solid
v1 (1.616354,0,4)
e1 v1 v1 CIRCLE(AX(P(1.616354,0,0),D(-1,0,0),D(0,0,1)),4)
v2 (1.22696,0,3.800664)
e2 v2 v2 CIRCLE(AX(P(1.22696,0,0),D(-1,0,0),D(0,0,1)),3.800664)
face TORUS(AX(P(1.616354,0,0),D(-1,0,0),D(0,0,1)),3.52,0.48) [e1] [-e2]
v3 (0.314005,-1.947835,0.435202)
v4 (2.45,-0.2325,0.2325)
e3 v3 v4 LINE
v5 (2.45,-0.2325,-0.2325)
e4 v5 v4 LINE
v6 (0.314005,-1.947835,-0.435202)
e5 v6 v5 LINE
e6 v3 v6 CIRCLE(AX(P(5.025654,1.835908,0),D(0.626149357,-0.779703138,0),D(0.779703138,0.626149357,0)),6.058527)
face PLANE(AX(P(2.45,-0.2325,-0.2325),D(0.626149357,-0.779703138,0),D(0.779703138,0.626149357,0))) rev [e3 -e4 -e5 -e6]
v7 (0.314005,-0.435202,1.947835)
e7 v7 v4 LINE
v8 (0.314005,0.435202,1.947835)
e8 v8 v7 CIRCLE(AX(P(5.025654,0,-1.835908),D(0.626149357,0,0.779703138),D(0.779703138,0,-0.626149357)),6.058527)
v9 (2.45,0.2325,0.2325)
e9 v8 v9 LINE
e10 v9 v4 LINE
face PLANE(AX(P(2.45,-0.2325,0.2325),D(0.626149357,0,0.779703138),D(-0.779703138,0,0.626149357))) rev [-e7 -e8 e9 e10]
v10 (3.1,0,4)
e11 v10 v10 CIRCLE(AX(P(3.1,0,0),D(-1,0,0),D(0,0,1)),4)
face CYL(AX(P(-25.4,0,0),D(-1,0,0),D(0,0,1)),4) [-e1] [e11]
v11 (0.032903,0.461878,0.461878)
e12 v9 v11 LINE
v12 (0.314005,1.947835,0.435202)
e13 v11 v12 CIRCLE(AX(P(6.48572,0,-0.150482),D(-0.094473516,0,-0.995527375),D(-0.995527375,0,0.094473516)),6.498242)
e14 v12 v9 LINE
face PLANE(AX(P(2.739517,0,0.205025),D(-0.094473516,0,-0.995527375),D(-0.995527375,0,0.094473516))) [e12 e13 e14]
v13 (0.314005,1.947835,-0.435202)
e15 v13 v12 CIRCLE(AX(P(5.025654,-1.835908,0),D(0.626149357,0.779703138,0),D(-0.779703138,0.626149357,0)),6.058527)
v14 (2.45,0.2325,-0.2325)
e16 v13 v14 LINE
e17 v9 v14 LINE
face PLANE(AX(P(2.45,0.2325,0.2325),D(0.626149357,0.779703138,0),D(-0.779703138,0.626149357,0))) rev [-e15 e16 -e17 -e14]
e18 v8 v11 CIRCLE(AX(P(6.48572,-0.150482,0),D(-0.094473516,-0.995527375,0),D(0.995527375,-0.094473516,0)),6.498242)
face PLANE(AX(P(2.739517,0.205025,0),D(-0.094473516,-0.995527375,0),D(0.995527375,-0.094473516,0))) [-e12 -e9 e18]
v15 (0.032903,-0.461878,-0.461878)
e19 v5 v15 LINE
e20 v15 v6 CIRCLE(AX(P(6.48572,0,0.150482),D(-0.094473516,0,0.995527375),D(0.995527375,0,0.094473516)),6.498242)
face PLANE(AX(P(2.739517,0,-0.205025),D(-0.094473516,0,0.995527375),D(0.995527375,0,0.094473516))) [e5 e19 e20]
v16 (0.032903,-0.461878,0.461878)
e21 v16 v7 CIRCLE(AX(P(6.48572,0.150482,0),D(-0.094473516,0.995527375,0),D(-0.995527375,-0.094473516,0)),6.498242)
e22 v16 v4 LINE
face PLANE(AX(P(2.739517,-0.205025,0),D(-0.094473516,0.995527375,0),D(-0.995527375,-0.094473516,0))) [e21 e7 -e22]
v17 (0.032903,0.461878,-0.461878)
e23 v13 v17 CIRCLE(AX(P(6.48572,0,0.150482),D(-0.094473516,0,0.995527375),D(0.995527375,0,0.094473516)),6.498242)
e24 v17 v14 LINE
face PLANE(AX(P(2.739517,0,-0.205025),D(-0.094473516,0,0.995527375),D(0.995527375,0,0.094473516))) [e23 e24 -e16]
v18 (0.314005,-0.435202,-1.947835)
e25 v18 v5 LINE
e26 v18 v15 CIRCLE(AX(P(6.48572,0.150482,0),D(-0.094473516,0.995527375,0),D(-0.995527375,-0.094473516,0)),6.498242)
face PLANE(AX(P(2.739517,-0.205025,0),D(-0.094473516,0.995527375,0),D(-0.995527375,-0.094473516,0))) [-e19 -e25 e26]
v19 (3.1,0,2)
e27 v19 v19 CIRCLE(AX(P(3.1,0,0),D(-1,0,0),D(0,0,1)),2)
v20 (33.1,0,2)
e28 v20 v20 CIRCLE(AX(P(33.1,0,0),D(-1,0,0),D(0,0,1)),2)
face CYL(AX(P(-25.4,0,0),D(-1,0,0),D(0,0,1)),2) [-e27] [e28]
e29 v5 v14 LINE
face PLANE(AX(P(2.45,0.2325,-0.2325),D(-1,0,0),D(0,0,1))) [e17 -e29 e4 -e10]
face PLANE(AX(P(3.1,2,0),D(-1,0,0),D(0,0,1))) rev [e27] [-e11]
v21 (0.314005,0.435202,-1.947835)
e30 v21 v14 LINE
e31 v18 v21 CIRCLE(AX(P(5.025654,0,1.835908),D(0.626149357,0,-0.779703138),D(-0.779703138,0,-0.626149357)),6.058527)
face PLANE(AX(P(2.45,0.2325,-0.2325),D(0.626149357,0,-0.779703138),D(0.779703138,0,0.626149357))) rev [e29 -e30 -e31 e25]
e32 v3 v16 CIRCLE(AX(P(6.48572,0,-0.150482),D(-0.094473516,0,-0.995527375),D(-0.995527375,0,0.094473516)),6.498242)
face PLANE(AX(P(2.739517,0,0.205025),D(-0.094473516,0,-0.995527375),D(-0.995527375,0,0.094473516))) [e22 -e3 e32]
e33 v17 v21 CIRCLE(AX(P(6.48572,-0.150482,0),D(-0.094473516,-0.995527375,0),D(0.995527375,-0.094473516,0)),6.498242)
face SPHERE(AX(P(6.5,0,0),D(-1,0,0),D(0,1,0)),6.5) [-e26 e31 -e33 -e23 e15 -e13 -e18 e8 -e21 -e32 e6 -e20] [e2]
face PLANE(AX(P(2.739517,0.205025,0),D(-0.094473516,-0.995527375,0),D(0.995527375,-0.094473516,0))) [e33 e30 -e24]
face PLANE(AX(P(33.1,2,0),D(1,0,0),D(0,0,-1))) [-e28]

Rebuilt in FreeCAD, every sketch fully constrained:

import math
import FreeCAD as App
import Part
import Sketcher

V = App.Vector
Q = App.Units.Quantity

doc = App.newDocument("Part")
params = doc.addObject("Spreadsheet::Sheet", "Params")
for row, (alias, value) in enumerate([
    ("sketch1_radius", "6.5 mm"),
    ("sketch1_width", "30 mm"),
    ("sketch1_height", "2 mm"),
    ("sketch1_radius2", "0.48 mm"),
    ("sketch1_width2", "33.1 mm"),
    ("revolution_angle", "360 deg"),
    ("sketch2_width", "4.4 mm"),
    ("sketch2_height", "0.93 mm"),
], start=1):
    params.set(f"A{row}", alias)
    params.set(f"B{row}", "=" + value)
    params.setAlias(f"B{row}", alias)

body = doc.addObject("PartDesign::Body", "Body")

# Sketch on XY plane
sketch1 = body.newObject("Sketcher::SketchObject", "Sketch")
sketch1.AttachmentSupport = (doc.getObject("XY_Plane"), [""])
sketch1.MapMode = "FlatFace"
sketch1.addGeometry([
    Part.LineSegment(V(3.1, 2, 0), V(3.1, 4, 0)),  # 0
    Part.LineSegment(V(3.1, 4, 0), V(1.62, 4, 0)),  # 1
    Part.ArcOfCircle(Part.Circle(V(1.62, 3.52, 0), V(0, 0, 1), 0.48), math.radians(90), math.radians(144)),  # 2
    Part.ArcOfCircle(Part.Circle(V(6.5, 0, 0), V(0, 0, 1), 6.5), math.radians(144), math.radians(180)),  # 3
    Part.LineSegment(V(0, 0, 0), V(33.1, 0, 0)),  # 4
    Part.LineSegment(V(33.1, 0, 0), V(33.1, 2, 0)),  # 5
    Part.LineSegment(V(33.1, 2, 0), V(3.1, 2, 0)),  # 6
], False)
sketch1.addConstraint([
    Sketcher.Constraint("Coincident", 0, 2, 1, 1),
    Sketcher.Constraint("Tangent", 1, 2, 2, 1),
    Sketcher.Constraint("Tangent", 2, 2, 3, 1),
    Sketcher.Constraint("Coincident", 3, 2, 4, 1),
    Sketcher.Constraint("Coincident", 4, 2, 5, 1),
    Sketcher.Constraint("Coincident", 5, 2, 6, 1),
    Sketcher.Constraint("Coincident", 6, 2, 0, 1),
    Sketcher.Constraint("Vertical", 0),
    Sketcher.Constraint("Horizontal", 1),
    Sketcher.Constraint("Horizontal", 4),
    Sketcher.Constraint("Vertical", 5),
    Sketcher.Constraint("Horizontal", 6),
    Sketcher.Constraint("Coincident", 3, 2, -1, 1),
    Sketcher.Constraint("PointOnObject", 3, 3, -1),
    Sketcher.Constraint("Equal", 0, 5),
    Sketcher.Constraint("Radius", 3, Q("6.5 mm")),
    Sketcher.Constraint("DistanceX", 6, 2, 6, 1, Q("30 mm")),
    Sketcher.Constraint("DistanceY", 0, 1, 0, 2, Q("2 mm")),
    Sketcher.Constraint("Radius", 2, Q("0.48 mm")),
    Sketcher.Constraint("DistanceX", 4, 1, 4, 2, Q("33.1 mm")),
])
sketch1.setExpression("Constraints[15]", "Params.sketch1_radius")
sketch1.setExpression("Constraints[16]", "Params.sketch1_width")
sketch1.setExpression("Constraints[17]", "Params.sketch1_height")
sketch1.setExpression("Constraints[18]", "Params.sketch1_radius2")
sketch1.setExpression("Constraints[19]", "Params.sketch1_width2")
revolution = body.newObject("PartDesign::Revolution", "Revolution")
revolution.Profile = sketch1
revolution.ReferenceAxis = (sketch1, ["H_Axis"])
revolution.setExpression("Angle", "Params.revolution_angle")

# Sketch on YZ plane
sketch2 = body.newObject("Sketcher::SketchObject", "Sketch001")
sketch2.AttachmentSupport = (doc.getObject("YZ_Plane"), [""])
sketch2.MapMode = "FlatFace"
sketch2.addGeometry([
    Part.LineSegment(V(2.2, 0.5, 0), V(-2.2, 0.5, 0)),
    Part.LineSegment(V(-2.2, 0.5, 0), V(-2.2, -0.5, 0)),
    Part.LineSegment(V(-2.2, -0.5, 0), V(2.2, -0.5, 0)),
    Part.LineSegment(V(2.2, -0.5, 0), V(2.2, 0.5, 0)),
], False)
sketch2.addConstraint([
    Sketcher.Constraint("Coincident", 0, 2, 1, 1),
    Sketcher.Constraint("Coincident", 1, 2, 2, 1),
    Sketcher.Constraint("Coincident", 2, 2, 3, 1),
    Sketcher.Constraint("Coincident", 3, 2, 0, 1),
    Sketcher.Constraint("Horizontal", 0),
    Sketcher.Constraint("Vertical", 1),
    Sketcher.Constraint("Horizontal", 2),
    Sketcher.Constraint("Vertical", 3),
    Sketcher.Constraint("Symmetric", 0, 2, 2, 2, -1, 1),
    Sketcher.Constraint("DistanceX", 0, 2, 0, 1, Q("4.4 mm")),
    Sketcher.Constraint("DistanceY", 1, 2, 1, 1, Q("0.93 mm")),
])
sketch2.setExpression("Constraints[9]", "Params.sketch2_width")
sketch2.setExpression("Constraints[10]", "Params.sketch2_height")

# Sketch on YZ plane
sketch3 = body.newObject("Sketcher::SketchObject", "Sketch002")
sketch3.AttachmentSupport = (doc.getObject("YZ_Plane"), [""])
sketch3.MapMode = "FlatFace"
sketch3.AttachmentOffset = App.Placement(V(0, 0, 2.45), App.Rotation())
sketch3.addGeometry([
    Part.LineSegment(V(0.23, 0.23, 0), V(-0.23, 0.23, 0)),
    Part.LineSegment(V(-0.23, 0.23, 0), V(-0.23, -0.23, 0)),
    Part.LineSegment(V(-0.23, -0.23, 0), V(0.23, -0.23, 0)),
    Part.LineSegment(V(0.23, -0.23, 0), V(0.23, 0.23, 0)),
], False)
sketch3.addConstraint([
    Sketcher.Constraint("Coincident", 0, 2, 1, 1),
    Sketcher.Constraint("Coincident", 1, 2, 2, 1),
    Sketcher.Constraint("Coincident", 2, 2, 3, 1),
    Sketcher.Constraint("Coincident", 3, 2, 0, 1),
    Sketcher.Constraint("Horizontal", 0),
    Sketcher.Constraint("Vertical", 1),
    Sketcher.Constraint("Horizontal", 2),
    Sketcher.Constraint("Vertical", 3),
    Sketcher.Constraint("Symmetric", 0, 2, 2, 2, -1, 1),
    Sketcher.Constraint("Equal", 2, 1),
    Sketcher.Constraint("DistanceX", 0, 2, 0, 1, Q("0.465 mm")),
])

subtractiveloft = body.newObject("PartDesign::SubtractiveLoft", "SubtractiveLoft")
subtractiveloft.Profile = sketch2
subtractiveloft.Sections = [sketch3]
doc.recompute()

polarpattern = body.newObject("PartDesign::PolarPattern", "PolarPattern")
polarpattern.Originals = [subtractiveloft]
polarpattern.Axis = (doc.getObject("X_Axis"), [""])
polarpattern.Angle = 90
polarpattern.Occurrences = 2
body.Tip = polarpattern

doc.recompute()
